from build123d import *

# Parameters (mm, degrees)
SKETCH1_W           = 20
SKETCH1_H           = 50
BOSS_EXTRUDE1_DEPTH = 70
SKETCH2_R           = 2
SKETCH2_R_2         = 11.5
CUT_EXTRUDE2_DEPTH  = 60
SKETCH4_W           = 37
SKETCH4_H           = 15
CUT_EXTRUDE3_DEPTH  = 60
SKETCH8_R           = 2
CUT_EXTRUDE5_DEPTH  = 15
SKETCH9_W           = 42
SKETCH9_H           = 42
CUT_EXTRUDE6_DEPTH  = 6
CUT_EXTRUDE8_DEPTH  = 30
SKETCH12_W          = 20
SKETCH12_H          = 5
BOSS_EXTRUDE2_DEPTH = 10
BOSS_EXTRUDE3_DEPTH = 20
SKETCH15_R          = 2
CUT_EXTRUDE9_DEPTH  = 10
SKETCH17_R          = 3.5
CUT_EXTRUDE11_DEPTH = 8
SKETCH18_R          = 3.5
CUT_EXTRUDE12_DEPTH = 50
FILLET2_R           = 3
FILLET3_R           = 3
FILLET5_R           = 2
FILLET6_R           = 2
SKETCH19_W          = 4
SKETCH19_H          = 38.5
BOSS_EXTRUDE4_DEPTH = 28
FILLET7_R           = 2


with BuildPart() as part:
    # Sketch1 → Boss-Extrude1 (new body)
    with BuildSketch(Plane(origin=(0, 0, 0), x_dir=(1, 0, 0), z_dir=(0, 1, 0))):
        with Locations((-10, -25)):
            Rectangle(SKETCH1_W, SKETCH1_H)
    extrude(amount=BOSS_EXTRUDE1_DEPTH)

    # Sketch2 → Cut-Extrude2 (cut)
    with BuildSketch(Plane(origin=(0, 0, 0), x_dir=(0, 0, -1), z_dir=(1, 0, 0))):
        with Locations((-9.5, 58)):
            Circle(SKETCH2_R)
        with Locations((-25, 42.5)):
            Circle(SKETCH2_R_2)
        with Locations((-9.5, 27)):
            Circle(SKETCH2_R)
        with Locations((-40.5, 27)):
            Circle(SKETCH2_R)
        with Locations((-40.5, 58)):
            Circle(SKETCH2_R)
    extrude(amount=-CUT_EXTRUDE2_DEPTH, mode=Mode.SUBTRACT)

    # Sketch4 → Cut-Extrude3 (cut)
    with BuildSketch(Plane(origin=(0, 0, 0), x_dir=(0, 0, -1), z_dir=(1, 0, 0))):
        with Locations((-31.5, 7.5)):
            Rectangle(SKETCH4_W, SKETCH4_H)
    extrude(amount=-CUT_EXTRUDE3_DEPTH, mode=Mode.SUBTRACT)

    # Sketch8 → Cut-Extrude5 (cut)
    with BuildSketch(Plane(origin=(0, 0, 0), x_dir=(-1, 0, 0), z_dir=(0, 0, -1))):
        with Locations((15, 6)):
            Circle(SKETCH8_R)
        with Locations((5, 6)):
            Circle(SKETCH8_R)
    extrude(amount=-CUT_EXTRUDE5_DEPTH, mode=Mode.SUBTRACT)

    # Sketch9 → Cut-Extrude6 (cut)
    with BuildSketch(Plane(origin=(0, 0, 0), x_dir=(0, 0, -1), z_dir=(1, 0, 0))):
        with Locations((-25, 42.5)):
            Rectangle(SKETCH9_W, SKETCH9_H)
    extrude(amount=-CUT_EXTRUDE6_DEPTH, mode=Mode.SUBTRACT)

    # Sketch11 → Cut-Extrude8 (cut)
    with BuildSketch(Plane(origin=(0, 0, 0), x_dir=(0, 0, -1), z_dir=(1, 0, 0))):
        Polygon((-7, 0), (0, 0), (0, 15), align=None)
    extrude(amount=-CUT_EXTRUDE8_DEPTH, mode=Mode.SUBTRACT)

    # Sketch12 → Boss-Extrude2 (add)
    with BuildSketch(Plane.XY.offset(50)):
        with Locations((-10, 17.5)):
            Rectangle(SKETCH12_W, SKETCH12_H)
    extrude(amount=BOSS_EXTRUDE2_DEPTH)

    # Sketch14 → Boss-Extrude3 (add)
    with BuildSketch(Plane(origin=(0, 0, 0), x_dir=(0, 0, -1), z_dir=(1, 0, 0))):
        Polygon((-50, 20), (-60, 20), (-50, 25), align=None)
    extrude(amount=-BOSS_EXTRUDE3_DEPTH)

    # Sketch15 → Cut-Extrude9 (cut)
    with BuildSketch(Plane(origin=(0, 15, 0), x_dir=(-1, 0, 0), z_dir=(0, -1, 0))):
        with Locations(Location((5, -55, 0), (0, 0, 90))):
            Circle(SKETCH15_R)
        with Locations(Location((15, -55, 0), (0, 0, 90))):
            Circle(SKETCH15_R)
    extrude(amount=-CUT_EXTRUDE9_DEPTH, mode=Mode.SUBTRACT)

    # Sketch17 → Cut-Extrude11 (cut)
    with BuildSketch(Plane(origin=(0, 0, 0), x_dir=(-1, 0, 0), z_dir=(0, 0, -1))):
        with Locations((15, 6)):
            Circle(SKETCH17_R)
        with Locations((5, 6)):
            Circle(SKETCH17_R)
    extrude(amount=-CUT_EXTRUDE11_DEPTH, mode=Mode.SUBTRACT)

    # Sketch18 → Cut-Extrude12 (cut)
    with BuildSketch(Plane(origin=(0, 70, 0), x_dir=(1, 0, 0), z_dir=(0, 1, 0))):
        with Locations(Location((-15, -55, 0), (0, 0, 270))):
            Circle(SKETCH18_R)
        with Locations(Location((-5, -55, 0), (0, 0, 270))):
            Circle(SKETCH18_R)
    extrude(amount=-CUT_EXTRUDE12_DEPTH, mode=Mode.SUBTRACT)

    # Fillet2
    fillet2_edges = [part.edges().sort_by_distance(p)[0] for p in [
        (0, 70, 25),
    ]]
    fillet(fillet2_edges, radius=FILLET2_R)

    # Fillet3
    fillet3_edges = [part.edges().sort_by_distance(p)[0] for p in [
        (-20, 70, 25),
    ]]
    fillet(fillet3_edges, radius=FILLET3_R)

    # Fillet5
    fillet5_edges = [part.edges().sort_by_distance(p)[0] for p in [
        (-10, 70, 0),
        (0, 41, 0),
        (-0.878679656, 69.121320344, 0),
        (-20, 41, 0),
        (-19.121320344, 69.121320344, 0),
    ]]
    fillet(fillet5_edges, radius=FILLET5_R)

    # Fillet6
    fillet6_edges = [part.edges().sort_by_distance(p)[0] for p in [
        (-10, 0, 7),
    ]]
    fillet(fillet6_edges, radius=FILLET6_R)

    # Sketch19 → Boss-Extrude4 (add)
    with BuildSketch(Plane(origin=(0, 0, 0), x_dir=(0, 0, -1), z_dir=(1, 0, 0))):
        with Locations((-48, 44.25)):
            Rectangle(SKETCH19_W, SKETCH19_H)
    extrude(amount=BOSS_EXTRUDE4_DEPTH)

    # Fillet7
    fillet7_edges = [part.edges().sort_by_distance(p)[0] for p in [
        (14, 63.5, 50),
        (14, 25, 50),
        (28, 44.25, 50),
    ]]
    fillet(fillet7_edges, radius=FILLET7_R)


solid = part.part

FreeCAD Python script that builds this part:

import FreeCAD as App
import Part
import Sketcher
from FreeCAD import Vector
Q = App.Units.Quantity


def edges_at(feature, points):
    """Names of the edges that pass closest to the given points."""
    edges = feature.Shape.Edges
    near = lambda p: min(range(len(edges)), key=lambda i: edges[i].distToShape(Part.Vertex(*p))[0])
    return sorted({f"Edge{near(p) + 1}" for p in points})


def add_polygon(sketch, points):
    """Adds a closed chain of lines whose ends are joined by coincident constraints."""
    first, n = sketch.GeometryCount, len(points)
    for a, b in zip(points, points[1:] + points[:1]):
        sketch.addGeometry(Part.LineSegment(App.Vector(*a, 0), App.Vector(*b, 0)), False)
    for i in range(n):
        sketch.addConstraint(Sketcher.Constraint("Coincident", first + i, 2, first + (i + 1) % n, 1))

doc = App.newDocument("Part")
body = doc.addObject("PartDesign::Body", "Body")

# Sketch on XZ plane
sketch1 = body.newObject("Sketcher::SketchObject", "Sketch")
sketch1.AttachmentSupport = (doc.getObject("XZ_Plane"), [""])
sketch1.MapMode = "FlatFace"
add_polygon(sketch1, [(-20, 0), (-20, 50), (0, 50), (0, 0)])  # lines 0-3
sketch1.addConstraint(Sketcher.Constraint("Vertical", 0))
sketch1.addConstraint(Sketcher.Constraint("Horizontal", 1))
sketch1.addConstraint(Sketcher.Constraint("Vertical", 2))
sketch1.addConstraint(Sketcher.Constraint("Horizontal", 3))
sketch1.addConstraint(Sketcher.Constraint("Coincident", 2, 2, -1, 1))
sketch1.addConstraint(Sketcher.Constraint("DistanceX", 1, 1, 1, 2, Q("20 mm")))
sketch1.addConstraint(Sketcher.Constraint("DistanceY", 0, 1, 0, 2, Q("50 mm")))
pad1 = body.newObject("PartDesign::Pad", "Pad")
pad1.Profile = sketch1
pad1.Length = 70
pad1.Reversed = True

# Sketch on YZ plane
sketch2 = body.newObject("Sketcher::SketchObject", "Sketch001")
sketch2.AttachmentSupport = (doc.getObject("YZ_Plane"), [""])
sketch2.MapMode = "FlatFace"
sketch2.addGeometry(Part.Circle(Vector(58, 9.5, 0), Vector(0, 0, 1), 2), False)
sketch2.addGeometry(Part.Circle(Vector(42.5, 25, 0), Vector(0, 0, 1), 11.5), False)
sketch2.addGeometry(Part.Circle(Vector(27, 9.5, 0), Vector(0, 0, 1), 2), False)
sketch2.addGeometry(Part.Circle(Vector(27, 40.5, 0), Vector(0, 0, 1), 2), False)
sketch2.addGeometry(Part.Circle(Vector(58, 40.5, 0), Vector(0, 0, 1), 2), False)
sketch2.addConstraint(Sketcher.Constraint("Equal", 0, 2))
sketch2.addConstraint(Sketcher.Constraint("Equal", 2, 3))
sketch2.addConstraint(Sketcher.Constraint("Equal", 3, 4))
sketch2.addConstraint(Sketcher.Constraint("Horizontal", 0, 3, 2, 3))
sketch2.addConstraint(Sketcher.Constraint("Horizontal", 3, 3, 4, 3))
sketch2.addConstraint(Sketcher.Constraint("Vertical", 2, 3, 3, 3))
sketch2.addConstraint(Sketcher.Constraint("Vertical", 0, 3, 4, 3))
sketch2.addConstraint(Sketcher.Constraint("Diameter", 0, Q("4 mm")))
sketch2.addConstraint(Sketcher.Constraint("Diameter", 1, Q("23 mm")))
sketch2.addConstraint(Sketcher.Constraint("DistanceX", -1, 1, 0, 3, Q("58 mm")))
sketch2.addConstraint(Sketcher.Constraint("DistanceY", -1, 1, 1, 3, Q("25 mm")))
sketch2.addConstraint(Sketcher.Constraint("DistanceX", -1, 1, 2, 3, Q("27 mm")))
sketch2.addConstraint(Sketcher.Constraint("DistanceY", 2, 3, 3, 3, Q("31 mm")))
sketch2.addConstraint(Sketcher.Constraint("DistanceY", -1, 1, 0, 3, Q("9.5 mm")))
sketch2.addConstraint(Sketcher.Constraint("DistanceX", -1, 1, 1, 3, Q("42.5 mm")))
pocket1 = body.newObject("PartDesign::Pocket", "Pocket")
pocket1.Profile = sketch2
pocket1.Length = 60

# Sketch on YZ plane
sketch3 = body.newObject("Sketcher::SketchObject", "Sketch002")
sketch3.AttachmentSupport = (doc.getObject("YZ_Plane"), [""])
sketch3.MapMode = "FlatFace"
add_polygon(sketch3, [(15, 50), (0, 50), (0, 13), (15, 13)])  # lines 0-3
sketch3.addConstraint(Sketcher.Constraint("Horizontal", 0))
sketch3.addConstraint(Sketcher.Constraint("Vertical", 1))
sketch3.addConstraint(Sketcher.Constraint("Horizontal", 2))
sketch3.addConstraint(Sketcher.Constraint("Vertical", 3))
sketch3.addConstraint(Sketcher.Constraint("PointOnObject", 0, 2, -2))
sketch3.addConstraint(Sketcher.Constraint("DistanceX", 0, 2, 0, 1, Q("15 mm")))
sketch3.addConstraint(Sketcher.Constraint("DistanceY", 1, 2, 1, 1, Q("37 mm")))
sketch3.addConstraint(Sketcher.Constraint("DistanceY", -1, 1, 0, 2, Q("50 mm")))
pocket2 = body.newObject("PartDesign::Pocket", "Pocket001")
pocket2.Profile = sketch3
pocket2.Length = 60

# Sketch on XY plane
sketch4 = body.newObject("Sketcher::SketchObject", "Sketch003")
sketch4.AttachmentSupport = (doc.getObject("XY_Plane"), [""])
sketch4.MapMode = "FlatFace"
sketch4.addGeometry(Part.Circle(Vector(-15, 6, 0), Vector(0, 0, 1), 2), False)
sketch4.addGeometry(Part.Circle(Vector(-5, 6, 0), Vector(0, 0, 1), 2), False)
sketch4.addConstraint(Sketcher.Constraint("Equal", 0, 1))
sketch4.addConstraint(Sketcher.Constraint("Horizontal", 0, 3, 1, 3))
sketch4.addConstraint(Sketcher.Constraint("Diameter", 0, Q("4 mm")))
sketch4.addConstraint(Sketcher.Constraint("DistanceX", 0, 3, -1, 1, Q("15 mm")))
sketch4.addConstraint(Sketcher.Constraint("DistanceY", -1, 1, 0, 3, Q("6 mm")))
sketch4.addConstraint(Sketcher.Constraint("DistanceX", 1, 3, -1, 1, Q("5 mm")))
pocket3 = body.newObject("PartDesign::Pocket", "Pocket002")
pocket3.Profile = sketch4
pocket3.Length = 15
pocket3.Reversed = True

# Sketch on YZ plane
sketch5 = body.newObject("Sketcher::SketchObject", "Sketch004")
sketch5.AttachmentSupport = (doc.getObject("YZ_Plane"), [""])
sketch5.MapMode = "FlatFace"
add_polygon(sketch5, [(63.5, 46), (21.5, 46), (21.5, 4), (63.5, 4)])  # lines 0-3
sketch5.addConstraint(Sketcher.Constraint("Horizontal", 0))
sketch5.addConstraint(Sketcher.Constraint("Vertical", 1))
sketch5.addConstraint(Sketcher.Constraint("Horizontal", 2))
sketch5.addConstraint(Sketcher.Constraint("Vertical", 3))
sketch5.addConstraint(Sketcher.Constraint("Equal", 2, 1))
sketch5.addConstraint(Sketcher.Constraint("DistanceX", 0, 2, 0, 1, Q("42 mm")))
sketch5.addConstraint(Sketcher.Constraint("DistanceY", -1, 1, 0, 2, Q("46 mm")))
sketch5.addConstraint(Sketcher.Constraint("DistanceX", -1, 1, 0, 2, Q("21.5 mm")))
pocket4 = body.newObject("PartDesign::Pocket", "Pocket003")
pocket4.Profile = sketch5
pocket4.Length = 6

# Sketch on YZ plane
sketch6 = body.newObject("Sketcher::SketchObject", "Sketch005")
sketch6.AttachmentSupport = (doc.getObject("YZ_Plane"), [""])
sketch6.MapMode = "FlatFace"
add_polygon(sketch6, [(0, 7), (0, 0), (15, 0)])  # lines 0-2
sketch6.addConstraint(Sketcher.Constraint("Vertical", 0))
sketch6.addConstraint(Sketcher.Constraint("Horizontal", 1))
sketch6.addConstraint(Sketcher.Constraint("Coincident", 0, 2, -1, 1))
sketch6.addConstraint(Sketcher.Constraint("DistanceX", 1, 1, 1, 2, Q("15 mm")))
sketch6.addConstraint(Sketcher.Constraint("DistanceY", 0, 2, 0, 1, Q("7 mm")))
pocket5 = body.newObject("PartDesign::Pocket", "Pocket004")
pocket5.Profile = sketch6
pocket5.Length = 30

# Sketch on XY plane
sketch7 = body.newObject("Sketcher::SketchObject", "Sketch006")
sketch7.AttachmentSupport = (doc.getObject("XY_Plane"), [""])
sketch7.MapMode = "FlatFace"
sketch7.AttachmentOffset = App.Placement(Vector(0, 0, 50), App.Rotation())
add_polygon(sketch7, [(-20, 20), (-20, 15), (0, 15), (0, 20)])  # lines 0-3
sketch7.addConstraint(Sketcher.Constraint("Vertical", 0))
sketch7.addConstraint(Sketcher.Constraint("Horizontal", 1))
sketch7.addConstraint(Sketcher.Constraint("Vertical", 2))
sketch7.addConstraint(Sketcher.Constraint("Horizontal", 3))
sketch7.addConstraint(Sketcher.Constraint("PointOnObject", 1, 2, -2))
sketch7.addConstraint(Sketcher.Constraint("DistanceX", 1, 1, 1, 2, Q("20 mm")))
sketch7.addConstraint(Sketcher.Constraint("DistanceY", 0, 2, 0, 1, Q("5 mm")))
sketch7.addConstraint(Sketcher.Constraint("DistanceY", -1, 1, 0, 2, Q("15 mm")))
pad2 = body.newObject("PartDesign::Pad", "Pad001")
pad2.Profile = sketch7
pad2.Length = 10

# Sketch on YZ plane
sketch8 = body.newObject("Sketcher::SketchObject", "Sketch007")
sketch8.AttachmentSupport = (doc.getObject("YZ_Plane"), [""])
sketch8.MapMode = "FlatFace"
add_polygon(sketch8, [(20, 60), (20, 50), (25, 50)])  # lines 0-2
sketch8.addConstraint(Sketcher.Constraint("Vertical", 0))
sketch8.addConstraint(Sketcher.Constraint("Horizontal", 1))
sketch8.addConstraint(Sketcher.Constraint("DistanceX", 1, 1, 1, 2, Q("5 mm")))
sketch8.addConstraint(Sketcher.Constraint("DistanceY", 0, 2, 0, 1, Q("10 mm")))
sketch8.addConstraint(Sketcher.Constraint("DistanceX", -1, 1, 0, 2, Q("20 mm")))
sketch8.addConstraint(Sketcher.Constraint("DistanceY", -1, 1, 0, 2, Q("50 mm")))
pad3 = body.newObject("PartDesign::Pad", "Pad002")
pad3.Profile = sketch8
pad3.Length = 20
pad3.Reversed = True

# Sketch on XZ plane
sketch9 = body.newObject("Sketcher::SketchObject", "Sketch008")
sketch9.AttachmentSupport = (doc.getObject("XZ_Plane"), [""])
sketch9.MapMode = "FlatFace"
sketch9.AttachmentOffset = App.Placement(Vector(0, 0, -15), App.Rotation())
sketch9.addGeometry(Part.Circle(Vector(-5, 55, 0), Vector(0, 0, 1), 2), False)
sketch9.addGeometry(Part.Circle(Vector(-15, 55, 0), Vector(0, 0, 1), 2), False)
sketch9.addConstraint(Sketcher.Constraint("Equal", 0, 1))
sketch9.addConstraint(Sketcher.Constraint("Horizontal", 0, 3, 1, 3))
sketch9.addConstraint(Sketcher.Constraint("Diameter", 0, Q("4 mm")))
sketch9.addConstraint(Sketcher.Constraint("DistanceX", 0, 3, -1, 1, Q("5 mm")))
sketch9.addConstraint(Sketcher.Constraint("DistanceY", -1, 1, 0, 3, Q("55 mm")))
sketch9.addConstraint(Sketcher.Constraint("DistanceX", 1, 3, -1, 1, Q("15 mm")))
pocket6 = body.newObject("PartDesign::Pocket", "Pocket005")
pocket6.Profile = sketch9
pocket6.Length = 10

# Sketch on XY plane
sketch10 = body.newObject("Sketcher::SketchObject", "Sketch009")
sketch10.AttachmentSupport = (doc.getObject("XY_Plane"), [""])
sketch10.MapMode = "FlatFace"
sketch10.addGeometry(Part.Circle(Vector(-15, 6, 0), Vector(0, 0, 1), 3.5), False)
sketch10.addGeometry(Part.Circle(Vector(-5, 6, 0), Vector(0, 0, 1), 3.5), False)
sketch10.addConstraint(Sketcher.Constraint("Equal", 0, 1))
sketch10.addConstraint(Sketcher.Constraint("Horizontal", 0, 3, 1, 3))
sketch10.addConstraint(Sketcher.Constraint("Diameter", 0, Q("7 mm")))
sketch10.addConstraint(Sketcher.Constraint("DistanceX", 0, 3, -1, 1, Q("15 mm")))
sketch10.addConstraint(Sketcher.Constraint("DistanceY", -1, 1, 0, 3, Q("6 mm")))
sketch10.addConstraint(Sketcher.Constraint("DistanceX", 1, 3, -1, 1, Q("5 mm")))
pocket7 = body.newObject("PartDesign::Pocket", "Pocket006")
pocket7.Profile = sketch10
pocket7.Length = 8
pocket7.Reversed = True

# Sketch on XZ plane
sketch11 = body.newObject("Sketcher::SketchObject", "Sketch010")
sketch11.AttachmentSupport = (doc.getObject("XZ_Plane"), [""])
sketch11.MapMode = "FlatFace"
sketch11.AttachmentOffset = App.Placement(Vector(0, 0, -70), App.Rotation())
sketch11.addGeometry(Part.Circle(Vector(-15, 55, 0), Vector(0, 0, 1), 3.5), False)
sketch11.addGeometry(Part.Circle(Vector(-5, 55, 0), Vector(0, 0, 1), 3.5), False)
sketch11.addConstraint(Sketcher.Constraint("Equal", 0, 1))
sketch11.addConstraint(Sketcher.Constraint("Horizontal", 0, 3, 1, 3))
sketch11.addConstraint(Sketcher.Constraint("Diameter", 0, Q("7 mm")))
sketch11.addConstraint(Sketcher.Constraint("DistanceX", 0, 3, -1, 1, Q("15 mm")))
sketch11.addConstraint(Sketcher.Constraint("DistanceY", -1, 1, 0, 3, Q("55 mm")))
sketch11.addConstraint(Sketcher.Constraint("DistanceX", 1, 3, -1, 1, Q("5 mm")))
pocket8 = body.newObject("PartDesign::Pocket", "Pocket007")
pocket8.Profile = sketch11
pocket8.Length = 50
pocket8.Reversed = True
doc.recompute()

fillet = body.newObject("PartDesign::Fillet", "Fillet")
fillet.Base = (pocket8, edges_at(pocket8, [(0, 70, 25)]))
fillet.Radius = 3
doc.recompute()

fillet2 = body.newObject("PartDesign::Fillet", "Fillet001")
fillet2.Base = (fillet, edges_at(fillet, [(-20, 70, 25)]))
fillet2.Radius = 3
doc.recompute()

fillet3 = body.newObject("PartDesign::Fillet", "Fillet002")
fillet3.Base = (fillet2, edges_at(fillet2, [
    (-10, 70, 0),
    (0, 41, 0),
    (-0.879, 69.121, 0),
    (-20, 41, 0),
    (-19.121, 69.121, 0),
]))
fillet3.Radius = 2
doc.recompute()

fillet4 = body.newObject("PartDesign::Fillet", "Fillet003")
fillet4.Base = (fillet3, edges_at(fillet3, [(-10, 0, 7)]))
fillet4.Radius = 2

# Sketch on YZ plane
sketch12 = body.newObject("Sketcher::SketchObject", "Sketch011")
sketch12.AttachmentSupport = (doc.getObject("YZ_Plane"), [""])
sketch12.MapMode = "FlatFace"
add_polygon(sketch12, [(63.5, 50), (25, 50), (25, 46), (63.5, 46)])  # lines 0-3
sketch12.addConstraint(Sketcher.Constraint("Horizontal", 0))
sketch12.addConstraint(Sketcher.Constraint("Vertical", 1))
sketch12.addConstraint(Sketcher.Constraint("Horizontal", 2))
sketch12.addConstraint(Sketcher.Constraint("Vertical", 3))
sketch12.addConstraint(Sketcher.Constraint("DistanceY", 1, 2, 1, 1, Q("4 mm")))
sketch12.addConstraint(Sketcher.Constraint("DistanceX", 0, 2, 0, 1, Q("38.5 mm")))
sketch12.addConstraint(Sketcher.Constraint("DistanceX", -1, 1, 0, 2, Q("25 mm")))
sketch12.addConstraint(Sketcher.Constraint("DistanceY", -1, 1, 0, 2, Q("50 mm")))
pad4 = body.newObject("PartDesign::Pad", "Pad003")
pad4.Profile = sketch12
pad4.Length = 28
doc.recompute()

fillet5 = body.newObject("PartDesign::Fillet", "Fillet004")
fillet5.Base = (pad4, edges_at(pad4, [(14, 63.5, 50), (14, 25, 50), (28, 44.25, 50)]))
fillet5.Radius = 2

doc.recompute()
